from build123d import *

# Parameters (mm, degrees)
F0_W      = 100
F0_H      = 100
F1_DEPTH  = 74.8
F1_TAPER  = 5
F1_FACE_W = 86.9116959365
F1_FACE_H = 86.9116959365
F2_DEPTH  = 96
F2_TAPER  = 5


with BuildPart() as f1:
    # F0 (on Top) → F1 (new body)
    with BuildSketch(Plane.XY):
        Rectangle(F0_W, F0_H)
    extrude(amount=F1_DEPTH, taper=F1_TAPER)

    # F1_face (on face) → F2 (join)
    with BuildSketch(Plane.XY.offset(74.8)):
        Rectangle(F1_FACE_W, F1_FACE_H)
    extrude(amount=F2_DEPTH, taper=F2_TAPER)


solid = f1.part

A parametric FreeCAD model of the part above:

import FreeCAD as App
import Part
import Sketcher
from FreeCAD import Vector
Q = App.Units.Quantity

doc = App.newDocument("Part")
params = doc.addObject("Spreadsheet::Sheet", "Params")
for row, (alias, value) in enumerate([
    ("sketch1_width", "100 mm"),
    ("pad1_length", "74.8 mm"),
    ("pad1_taper", "-5 deg"),
    ("pad2_length", "96 mm"),
    ("pad2_taper", "-5 deg"),
], start=1):
    params.set(f"A{row}", alias)
    params.set(f"B{row}", "=" + value)
    params.setAlias(f"B{row}", alias)

body = doc.addObject("PartDesign::Body", "Body")

# Sketch on XY plane
sketch1 = body.newObject("Sketcher::SketchObject", "Sketch")
sketch1.AttachmentSupport = (doc.getObject("XY_Plane"), [""])
sketch1.MapMode = "FlatFace"
sketch1.addGeometry([
    Part.LineSegment(Vector(-50, 50, 0), Vector(-50, -50, 0)),
    Part.LineSegment(Vector(-50, -50, 0), Vector(50, -50, 0)),
    Part.LineSegment(Vector(50, -50, 0), Vector(50, 50, 0)),
    Part.LineSegment(Vector(50, 50, 0), Vector(-50, 50, 0)),
], False)
sketch1.addConstraint([
    Sketcher.Constraint("Coincident", 0, 2, 1, 1),
    Sketcher.Constraint("Coincident", 1, 2, 2, 1),
    Sketcher.Constraint("Coincident", 2, 2, 3, 1),
    Sketcher.Constraint("Coincident", 3, 2, 0, 1),
    Sketcher.Constraint("Vertical", 0),
    Sketcher.Constraint("Horizontal", 1),
    Sketcher.Constraint("Vertical", 2),
    Sketcher.Constraint("Horizontal", 3),
    Sketcher.Constraint("Symmetric", 0, 2, 2, 2, -1, 1),
    Sketcher.Constraint("Equal", 3, 0),
    Sketcher.Constraint("DistanceX", 1, 1, 1, 2, Q("100 mm")),
])
sketch1.setExpression("Constraints[10]", "Params.sketch1_width")
pad1 = body.newObject("PartDesign::Pad", "Pad")
pad1.Profile = sketch1
pad1.setExpression("Length", "Params.pad1_length")
pad1.setExpression("TaperAngle", "Params.pad1_taper")

# Sketch on XY plane
sketch2 = body.newObject("Sketcher::SketchObject", "Sketch001")
sketch2.AttachmentSupport = (doc.getObject("XY_Plane"), [""])
sketch2.MapMode = "FlatFace"
sketch2.AttachmentOffset = App.Placement(Vector(0, 0, 74.8), App.Rotation())
sketch2.addGeometry([
    Part.LineSegment(Vector(-43.455848, 43.455848, 0), Vector(-43.455848, -43.455848, 0)),
    Part.LineSegment(Vector(-43.455848, -43.455848, 0), Vector(43.455848, -43.455848, 0)),
    Part.LineSegment(Vector(43.455848, -43.455848, 0), Vector(43.455848, 43.455848, 0)),
    Part.LineSegment(Vector(43.455848, 43.455848, 0), Vector(-43.455848, 43.455848, 0)),
], False)
sketch2.addConstraint([
    Sketcher.Constraint("Coincident", 0, 2, 1, 1),
    Sketcher.Constraint("Coincident", 1, 2, 2, 1),
    Sketcher.Constraint("Coincident", 2, 2, 3, 1),
    Sketcher.Constraint("Coincident", 3, 2, 0, 1),
    Sketcher.Constraint("Vertical", 0),
    Sketcher.Constraint("Horizontal", 1),
    Sketcher.Constraint("Vertical", 2),
    Sketcher.Constraint("Horizontal", 3),
    Sketcher.Constraint("Symmetric", 0, 2, 2, 2, -1, 1),
    Sketcher.Constraint("Equal", 3, 0),
    Sketcher.Constraint("DistanceX", 1, 1, 1, 2, Q("86.911696 mm")),
])
pad2 = body.newObject("PartDesign::Pad", "Pad001")
pad2.Profile = sketch2
pad2.setExpression("Length", "Params.pad2_length")
pad2.setExpression("TaperAngle", "Params.pad2_taper")

doc.recompute()
